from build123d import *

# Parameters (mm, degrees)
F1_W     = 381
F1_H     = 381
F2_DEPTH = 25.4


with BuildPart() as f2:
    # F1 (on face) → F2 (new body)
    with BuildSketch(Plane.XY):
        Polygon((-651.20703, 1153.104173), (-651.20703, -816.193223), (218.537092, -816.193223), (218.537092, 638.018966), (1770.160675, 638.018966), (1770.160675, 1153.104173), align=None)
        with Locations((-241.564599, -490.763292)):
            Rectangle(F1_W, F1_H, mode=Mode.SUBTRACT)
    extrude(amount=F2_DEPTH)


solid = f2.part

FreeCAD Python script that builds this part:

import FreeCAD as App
import Part
import Sketcher
from FreeCAD import Vector
Q = App.Units.Quantity

doc = App.newDocument("Part")
params = doc.addObject("Spreadsheet::Sheet", "Params")
for row, (alias, value) in enumerate([
    ("sketch1_width", "15 in"),
    ("pad1_length", "1 in"),
], start=1):
    params.set(f"A{row}", alias)
    params.set(f"B{row}", "=" + value)
    params.setAlias(f"B{row}", alias)

body = doc.addObject("PartDesign::Body", "Body")

sketch1 = body.newObject("Sketcher::SketchObject", "Sketch")
sketch1.AttachmentSupport = (doc.getObject("XY_Plane"), [""])
sketch1.MapMode = "FlatFace"
sketch1.addGeometry([
    Part.LineSegment(Vector(-651.20703, 1153.104173, 0), Vector(-651.20703, -816.193223, 0)),
    Part.LineSegment(Vector(-651.20703, -816.193223, 0), Vector(218.537092, -816.193223, 0)),
    Part.LineSegment(Vector(218.537092, -816.193223, 0), Vector(218.537092, 638.018966, 0)),
    Part.LineSegment(Vector(218.537092, 638.018966, 0), Vector(1770.160675, 638.018966, 0)),
    Part.LineSegment(Vector(1770.160675, 638.018966, 0), Vector(1770.160675, 1153.104173, 0)),
    Part.LineSegment(Vector(1770.160675, 1153.104173, 0), Vector(-651.20703, 1153.104173, 0)),
    Part.LineSegment(Vector(-51.064599, -681.263292, 0), Vector(-432.064599, -681.263292, 0)),
    Part.LineSegment(Vector(-432.064599, -681.263292, 0), Vector(-432.064599, -300.263292, 0)),
    Part.LineSegment(Vector(-432.064599, -300.263292, 0), Vector(-51.064599, -300.263292, 0)),
    Part.LineSegment(Vector(-51.064599, -300.263292, 0), Vector(-51.064599, -681.263292, 0)),
], False)
sketch1.addConstraint([
    Sketcher.Constraint("Coincident", 0, 2, 1, 1),
    Sketcher.Constraint("Coincident", 1, 2, 2, 1),
    Sketcher.Constraint("Coincident", 2, 2, 3, 1),
    Sketcher.Constraint("Coincident", 3, 2, 4, 1),
    Sketcher.Constraint("Coincident", 4, 2, 5, 1),
    Sketcher.Constraint("Coincident", 5, 2, 0, 1),
    Sketcher.Constraint("Coincident", 6, 2, 7, 1),
    Sketcher.Constraint("Coincident", 7, 2, 8, 1),
    Sketcher.Constraint("Coincident", 8, 2, 9, 1),
    Sketcher.Constraint("Coincident", 9, 2, 6, 1),
    Sketcher.Constraint("Vertical", 0),
    Sketcher.Constraint("Horizontal", 1),
    Sketcher.Constraint("Vertical", 2),
    Sketcher.Constraint("Horizontal", 3),
    Sketcher.Constraint("Vertical", 4),
    Sketcher.Constraint("Horizontal", 5),
    Sketcher.Constraint("Horizontal", 6),
    Sketcher.Constraint("Vertical", 7),
    Sketcher.Constraint("Horizontal", 8),
    Sketcher.Constraint("Vertical", 9),
    Sketcher.Constraint("Equal", 8, 7),
    Sketcher.Constraint("DistanceX", 6, 2, 6, 1, Q("15 in")),
    Sketcher.Constraint("DistanceY", 2, 1, 2, 2, Q("1454.212189 mm")),
    Sketcher.Constraint("DistanceX", 6, 2, -1, 1, Q("432.064599 mm")),
    Sketcher.Constraint("DistanceX", 1, 1, 1, 2, Q("869.744122 mm")),
    Sketcher.Constraint("DistanceX", 3, 1, 3, 2, Q("1551.623583 mm")),
    Sketcher.Constraint("DistanceY", 0, 2, 0, 1, Q("1969.297396 mm")),
    Sketcher.Constraint("DistanceX", 0, 2, -1, 1, Q("651.20703 mm")),
    Sketcher.Constraint("DistanceY", 6, 2, -1, 1, Q("681.263292 mm")),
    Sketcher.Constraint("DistanceY", 0, 2, 6, 2, Q("134.929931 mm")),
])
sketch1.setExpression("Constraints[21]", "Params.sketch1_width")
pad1 = body.newObject("PartDesign::Pad", "Pad")
pad1.Profile = sketch1
pad1.setExpression("Length", "Params.pad1_length")

doc.recompute()
